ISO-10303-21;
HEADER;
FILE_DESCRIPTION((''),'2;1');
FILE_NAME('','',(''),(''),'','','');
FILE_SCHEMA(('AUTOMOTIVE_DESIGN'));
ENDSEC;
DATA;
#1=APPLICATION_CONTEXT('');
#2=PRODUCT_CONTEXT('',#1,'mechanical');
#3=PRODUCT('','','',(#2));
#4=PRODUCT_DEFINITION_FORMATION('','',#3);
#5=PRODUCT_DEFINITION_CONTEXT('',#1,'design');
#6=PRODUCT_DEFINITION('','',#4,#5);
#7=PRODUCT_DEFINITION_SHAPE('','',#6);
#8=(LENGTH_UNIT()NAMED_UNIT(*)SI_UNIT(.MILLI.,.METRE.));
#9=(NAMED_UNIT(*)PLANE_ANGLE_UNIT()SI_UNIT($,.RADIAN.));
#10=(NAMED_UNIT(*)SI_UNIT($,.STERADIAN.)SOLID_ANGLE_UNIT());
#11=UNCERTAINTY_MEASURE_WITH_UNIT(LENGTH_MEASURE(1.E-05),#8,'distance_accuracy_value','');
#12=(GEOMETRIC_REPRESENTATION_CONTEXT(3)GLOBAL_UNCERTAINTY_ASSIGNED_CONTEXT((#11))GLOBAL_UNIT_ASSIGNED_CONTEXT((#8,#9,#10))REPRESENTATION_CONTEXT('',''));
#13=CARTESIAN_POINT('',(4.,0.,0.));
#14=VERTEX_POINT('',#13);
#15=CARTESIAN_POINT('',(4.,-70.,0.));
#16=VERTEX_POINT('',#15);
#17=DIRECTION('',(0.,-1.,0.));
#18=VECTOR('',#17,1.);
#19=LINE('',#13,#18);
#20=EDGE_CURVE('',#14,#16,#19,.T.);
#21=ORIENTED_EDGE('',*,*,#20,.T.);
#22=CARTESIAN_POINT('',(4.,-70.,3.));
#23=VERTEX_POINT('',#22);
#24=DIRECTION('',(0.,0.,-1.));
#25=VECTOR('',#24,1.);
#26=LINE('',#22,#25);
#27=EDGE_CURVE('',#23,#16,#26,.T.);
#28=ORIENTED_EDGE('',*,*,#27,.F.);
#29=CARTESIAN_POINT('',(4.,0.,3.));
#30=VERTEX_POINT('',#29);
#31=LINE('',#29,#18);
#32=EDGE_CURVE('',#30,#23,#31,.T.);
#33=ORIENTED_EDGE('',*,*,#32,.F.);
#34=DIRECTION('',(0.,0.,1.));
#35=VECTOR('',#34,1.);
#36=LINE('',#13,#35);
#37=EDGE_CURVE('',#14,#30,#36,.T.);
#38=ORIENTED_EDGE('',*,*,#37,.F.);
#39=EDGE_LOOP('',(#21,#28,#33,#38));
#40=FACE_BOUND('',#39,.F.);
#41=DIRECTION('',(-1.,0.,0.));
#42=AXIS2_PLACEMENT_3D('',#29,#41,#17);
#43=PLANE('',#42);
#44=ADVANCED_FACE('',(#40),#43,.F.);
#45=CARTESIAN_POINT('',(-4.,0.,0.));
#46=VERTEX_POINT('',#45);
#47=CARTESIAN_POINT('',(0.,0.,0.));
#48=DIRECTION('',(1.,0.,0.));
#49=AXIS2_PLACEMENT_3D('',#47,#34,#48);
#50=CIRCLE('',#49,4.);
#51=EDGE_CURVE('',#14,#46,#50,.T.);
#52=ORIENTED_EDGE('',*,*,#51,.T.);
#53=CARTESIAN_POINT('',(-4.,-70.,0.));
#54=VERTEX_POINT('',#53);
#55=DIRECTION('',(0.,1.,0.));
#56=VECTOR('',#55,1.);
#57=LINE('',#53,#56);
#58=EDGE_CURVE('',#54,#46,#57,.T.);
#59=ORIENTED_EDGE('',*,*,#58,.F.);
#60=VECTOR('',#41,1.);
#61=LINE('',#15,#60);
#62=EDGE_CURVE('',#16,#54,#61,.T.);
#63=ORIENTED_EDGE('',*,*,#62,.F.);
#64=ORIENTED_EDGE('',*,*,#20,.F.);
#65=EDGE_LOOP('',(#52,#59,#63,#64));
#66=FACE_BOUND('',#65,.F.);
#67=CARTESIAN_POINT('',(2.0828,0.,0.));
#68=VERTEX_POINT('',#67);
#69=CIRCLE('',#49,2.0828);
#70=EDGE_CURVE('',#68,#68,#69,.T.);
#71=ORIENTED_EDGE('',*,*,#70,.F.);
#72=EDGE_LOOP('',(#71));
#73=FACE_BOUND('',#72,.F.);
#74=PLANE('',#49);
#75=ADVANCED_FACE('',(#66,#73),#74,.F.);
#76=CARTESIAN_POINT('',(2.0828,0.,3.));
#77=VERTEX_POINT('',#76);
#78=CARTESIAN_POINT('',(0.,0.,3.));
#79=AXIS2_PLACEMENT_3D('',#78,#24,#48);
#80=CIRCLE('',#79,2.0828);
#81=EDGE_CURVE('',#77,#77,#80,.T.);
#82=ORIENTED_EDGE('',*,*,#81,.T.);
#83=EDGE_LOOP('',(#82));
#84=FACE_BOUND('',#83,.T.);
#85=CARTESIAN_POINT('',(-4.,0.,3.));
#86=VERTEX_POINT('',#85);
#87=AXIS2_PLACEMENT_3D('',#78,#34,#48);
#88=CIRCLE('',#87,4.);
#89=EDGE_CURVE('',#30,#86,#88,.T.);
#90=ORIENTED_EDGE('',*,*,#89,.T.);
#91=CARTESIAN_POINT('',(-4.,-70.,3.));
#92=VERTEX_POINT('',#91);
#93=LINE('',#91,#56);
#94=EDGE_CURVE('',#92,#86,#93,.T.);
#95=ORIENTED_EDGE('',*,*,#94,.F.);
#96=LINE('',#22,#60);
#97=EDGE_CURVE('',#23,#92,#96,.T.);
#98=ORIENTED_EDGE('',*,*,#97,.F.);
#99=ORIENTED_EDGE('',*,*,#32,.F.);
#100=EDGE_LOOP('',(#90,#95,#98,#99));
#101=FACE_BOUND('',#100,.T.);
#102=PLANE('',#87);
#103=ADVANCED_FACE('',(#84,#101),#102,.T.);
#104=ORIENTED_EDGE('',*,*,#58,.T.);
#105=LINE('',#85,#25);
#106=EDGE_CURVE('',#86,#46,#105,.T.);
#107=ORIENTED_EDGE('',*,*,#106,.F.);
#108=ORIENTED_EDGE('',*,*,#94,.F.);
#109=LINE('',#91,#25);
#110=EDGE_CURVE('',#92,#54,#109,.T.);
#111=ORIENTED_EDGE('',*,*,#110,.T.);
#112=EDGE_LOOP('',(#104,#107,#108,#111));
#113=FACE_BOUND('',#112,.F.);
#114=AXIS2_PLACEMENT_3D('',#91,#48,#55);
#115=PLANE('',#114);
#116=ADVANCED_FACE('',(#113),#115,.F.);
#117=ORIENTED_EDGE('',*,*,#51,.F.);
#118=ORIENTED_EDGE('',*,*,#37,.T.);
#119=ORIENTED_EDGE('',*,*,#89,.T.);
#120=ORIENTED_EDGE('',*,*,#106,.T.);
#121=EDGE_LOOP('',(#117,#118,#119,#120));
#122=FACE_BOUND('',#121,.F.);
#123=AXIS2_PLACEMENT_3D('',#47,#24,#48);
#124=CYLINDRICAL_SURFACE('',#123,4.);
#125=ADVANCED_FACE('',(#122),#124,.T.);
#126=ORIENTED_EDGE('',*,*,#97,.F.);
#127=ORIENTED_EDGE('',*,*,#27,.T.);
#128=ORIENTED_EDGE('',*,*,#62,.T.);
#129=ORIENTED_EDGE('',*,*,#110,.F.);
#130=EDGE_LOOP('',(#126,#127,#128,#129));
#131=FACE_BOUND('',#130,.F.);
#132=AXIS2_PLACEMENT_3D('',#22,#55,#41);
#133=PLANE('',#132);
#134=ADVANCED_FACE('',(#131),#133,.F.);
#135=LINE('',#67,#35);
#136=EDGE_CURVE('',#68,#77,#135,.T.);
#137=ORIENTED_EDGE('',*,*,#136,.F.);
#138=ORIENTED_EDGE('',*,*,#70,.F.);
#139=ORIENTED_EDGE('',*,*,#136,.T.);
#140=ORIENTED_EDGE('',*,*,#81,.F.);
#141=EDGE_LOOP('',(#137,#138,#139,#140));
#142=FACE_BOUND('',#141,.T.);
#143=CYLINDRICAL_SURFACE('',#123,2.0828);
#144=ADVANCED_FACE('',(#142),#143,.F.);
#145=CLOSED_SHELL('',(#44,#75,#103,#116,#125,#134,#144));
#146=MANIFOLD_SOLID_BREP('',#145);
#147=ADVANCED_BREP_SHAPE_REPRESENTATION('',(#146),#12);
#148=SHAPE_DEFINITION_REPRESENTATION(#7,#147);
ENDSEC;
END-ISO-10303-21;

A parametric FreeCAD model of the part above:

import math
import FreeCAD as App
import Part
import Sketcher

doc = App.newDocument("Part")
body = doc.addObject("PartDesign::Body", "Body")

sketch1 = body.newObject("Sketcher::SketchObject", "Sketch")
sketch1.AttachmentSupport = (doc.getObject("XY_Plane"), [""])
sketch1.MapMode = "FlatFace"
sketch1.addGeometry(Part.Circle(App.Vector(0, 0, 0), App.Vector(0, 0, 1), 4), False)
sketch1.addConstraint(Sketcher.Constraint("Coincident", 0, 3, -1, 1))
sketch1.addConstraint(Sketcher.Constraint("Diameter", 0, 8.0))
pad1 = body.newObject("PartDesign::Pad", "Pad")
pad1.Profile = sketch1
pad1.Length = 3

sketch2 = body.newObject("Sketcher::SketchObject", "Sketch001")
sketch2.AttachmentSupport = (doc.getObject("XY_Plane"), [""])
sketch2.MapMode = "FlatFace"
sketch2.AttachmentOffset = App.Placement(App.Vector(0, 0, 3), App.Rotation())
sketch2.addGeometry(Part.LineSegment(App.Vector(4, -70, 0), App.Vector(4, 0, 0)), False)
sketch2.addGeometry(Part.ArcOfCircle(Part.Circle(App.Vector(0, 0, 0), App.Vector(0, 0, 1), 4), math.radians(180), math.radians(360)), False)
sketch2.addGeometry(Part.LineSegment(App.Vector(-4, 0, 0), App.Vector(-4, -70, 0)), False)
sketch2.addGeometry(Part.LineSegment(App.Vector(-4, -70, 0), App.Vector(4, -70, 0)), False)
sketch2.addConstraint(Sketcher.Constraint("Tangent", 0, 2, 1, 2))
sketch2.addConstraint(Sketcher.Constraint("Tangent", 1, 1, 2, 1))
sketch2.addConstraint(Sketcher.Constraint("Coincident", 2, 2, 3, 1))
sketch2.addConstraint(Sketcher.Constraint("Coincident", 3, 2, 0, 1))
sketch2.addConstraint(Sketcher.Constraint("Vertical", 0))
sketch2.addConstraint(Sketcher.Constraint("Vertical", 2))
sketch2.addConstraint(Sketcher.Constraint("Horizontal", 3))
sketch2.addConstraint(Sketcher.Constraint("Coincident", 1, 3, -1, 1))
sketch2.addConstraint(Sketcher.Constraint("DistanceY", 0, 1, 0, 2, 70.0))
sketch2.addConstraint(Sketcher.Constraint("Radius", 1, 4.0))
pad2 = body.newObject("PartDesign::Pad", "Pad001")
pad2.Profile = sketch2
pad2.Length = 3
pad2.Reversed = True

sketch3 = body.newObject("Sketcher::SketchObject", "Sketch002")
sketch3.AttachmentSupport = (doc.getObject("XY_Plane"), [""])
sketch3.MapMode = "FlatFace"
sketch3.addGeometry(Part.Circle(App.Vector(0, 0, 0), App.Vector(0, 0, 1), 2.0828), False)
sketch3.addConstraint(Sketcher.Constraint("Coincident", 0, 3, -1, 1))
sketch3.addConstraint(Sketcher.Constraint("Diameter", 0, 4.1656))
pocket1 = body.newObject("PartDesign::Pocket", "Pocket")
pocket1.Profile = sketch3
pocket1.Length = 5
pocket1.Reversed = True

doc.recompute()
